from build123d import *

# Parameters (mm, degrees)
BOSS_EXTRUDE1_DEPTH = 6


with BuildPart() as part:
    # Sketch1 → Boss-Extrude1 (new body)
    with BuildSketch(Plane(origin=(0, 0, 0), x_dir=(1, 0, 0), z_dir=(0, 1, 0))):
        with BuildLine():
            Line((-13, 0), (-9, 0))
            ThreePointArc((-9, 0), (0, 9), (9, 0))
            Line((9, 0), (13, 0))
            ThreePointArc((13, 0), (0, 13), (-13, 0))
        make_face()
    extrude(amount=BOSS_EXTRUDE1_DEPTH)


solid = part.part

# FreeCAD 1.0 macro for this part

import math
import FreeCAD as App
import Part
import Sketcher
from FreeCAD import Vector
Q = App.Units.Quantity

doc = App.newDocument("Part")
body = doc.addObject("PartDesign::Body", "Body")

# Sketch on XZ plane
sketch1 = body.newObject("Sketcher::SketchObject", "Sketch")
sketch1.AttachmentSupport = (doc.getObject("XZ_Plane"), [""])
sketch1.MapMode = "FlatFace"
sketch1.addGeometry([
    Part.LineSegment(Vector(-13, 0, 0), Vector(-9, 0, 0)),
    Part.ArcOfCircle(Part.Circle(Vector(0, 0, 0), Vector(0, 0, 1), 9), math.radians(180), math.radians(360)),
    Part.LineSegment(Vector(9, 0, 0), Vector(13, 0, 0)),
    Part.ArcOfCircle(Part.Circle(Vector(0, 0, 0), Vector(0, 0, 1), 13), math.radians(180), math.radians(360)),
], False)
sketch1.addConstraint([
    Sketcher.Constraint("Coincident", 0, 2, 1, 1),
    Sketcher.Constraint("Coincident", 1, 2, 2, 1),
    Sketcher.Constraint("Coincident", 2, 2, 3, 2),
    Sketcher.Constraint("Coincident", 3, 1, 0, 1),
    Sketcher.Constraint("Horizontal", 0),
    Sketcher.Constraint("Horizontal", 2),
    Sketcher.Constraint("Coincident", 1, 3, -1, 1),
    Sketcher.Constraint("Coincident", 3, 3, -1, 1),
    Sketcher.Constraint("PointOnObject", 0, 2, -1),
    Sketcher.Constraint("PointOnObject", 1, 2, -1),
    Sketcher.Constraint("Radius", 1, Q("9 mm")),
    Sketcher.Constraint("Radius", 3, Q("13 mm")),
])
pad1 = body.newObject("PartDesign::Pad", "Pad")
pad1.Profile = sketch1
pad1.Length = 6
pad1.Reversed = True

doc.recompute()
